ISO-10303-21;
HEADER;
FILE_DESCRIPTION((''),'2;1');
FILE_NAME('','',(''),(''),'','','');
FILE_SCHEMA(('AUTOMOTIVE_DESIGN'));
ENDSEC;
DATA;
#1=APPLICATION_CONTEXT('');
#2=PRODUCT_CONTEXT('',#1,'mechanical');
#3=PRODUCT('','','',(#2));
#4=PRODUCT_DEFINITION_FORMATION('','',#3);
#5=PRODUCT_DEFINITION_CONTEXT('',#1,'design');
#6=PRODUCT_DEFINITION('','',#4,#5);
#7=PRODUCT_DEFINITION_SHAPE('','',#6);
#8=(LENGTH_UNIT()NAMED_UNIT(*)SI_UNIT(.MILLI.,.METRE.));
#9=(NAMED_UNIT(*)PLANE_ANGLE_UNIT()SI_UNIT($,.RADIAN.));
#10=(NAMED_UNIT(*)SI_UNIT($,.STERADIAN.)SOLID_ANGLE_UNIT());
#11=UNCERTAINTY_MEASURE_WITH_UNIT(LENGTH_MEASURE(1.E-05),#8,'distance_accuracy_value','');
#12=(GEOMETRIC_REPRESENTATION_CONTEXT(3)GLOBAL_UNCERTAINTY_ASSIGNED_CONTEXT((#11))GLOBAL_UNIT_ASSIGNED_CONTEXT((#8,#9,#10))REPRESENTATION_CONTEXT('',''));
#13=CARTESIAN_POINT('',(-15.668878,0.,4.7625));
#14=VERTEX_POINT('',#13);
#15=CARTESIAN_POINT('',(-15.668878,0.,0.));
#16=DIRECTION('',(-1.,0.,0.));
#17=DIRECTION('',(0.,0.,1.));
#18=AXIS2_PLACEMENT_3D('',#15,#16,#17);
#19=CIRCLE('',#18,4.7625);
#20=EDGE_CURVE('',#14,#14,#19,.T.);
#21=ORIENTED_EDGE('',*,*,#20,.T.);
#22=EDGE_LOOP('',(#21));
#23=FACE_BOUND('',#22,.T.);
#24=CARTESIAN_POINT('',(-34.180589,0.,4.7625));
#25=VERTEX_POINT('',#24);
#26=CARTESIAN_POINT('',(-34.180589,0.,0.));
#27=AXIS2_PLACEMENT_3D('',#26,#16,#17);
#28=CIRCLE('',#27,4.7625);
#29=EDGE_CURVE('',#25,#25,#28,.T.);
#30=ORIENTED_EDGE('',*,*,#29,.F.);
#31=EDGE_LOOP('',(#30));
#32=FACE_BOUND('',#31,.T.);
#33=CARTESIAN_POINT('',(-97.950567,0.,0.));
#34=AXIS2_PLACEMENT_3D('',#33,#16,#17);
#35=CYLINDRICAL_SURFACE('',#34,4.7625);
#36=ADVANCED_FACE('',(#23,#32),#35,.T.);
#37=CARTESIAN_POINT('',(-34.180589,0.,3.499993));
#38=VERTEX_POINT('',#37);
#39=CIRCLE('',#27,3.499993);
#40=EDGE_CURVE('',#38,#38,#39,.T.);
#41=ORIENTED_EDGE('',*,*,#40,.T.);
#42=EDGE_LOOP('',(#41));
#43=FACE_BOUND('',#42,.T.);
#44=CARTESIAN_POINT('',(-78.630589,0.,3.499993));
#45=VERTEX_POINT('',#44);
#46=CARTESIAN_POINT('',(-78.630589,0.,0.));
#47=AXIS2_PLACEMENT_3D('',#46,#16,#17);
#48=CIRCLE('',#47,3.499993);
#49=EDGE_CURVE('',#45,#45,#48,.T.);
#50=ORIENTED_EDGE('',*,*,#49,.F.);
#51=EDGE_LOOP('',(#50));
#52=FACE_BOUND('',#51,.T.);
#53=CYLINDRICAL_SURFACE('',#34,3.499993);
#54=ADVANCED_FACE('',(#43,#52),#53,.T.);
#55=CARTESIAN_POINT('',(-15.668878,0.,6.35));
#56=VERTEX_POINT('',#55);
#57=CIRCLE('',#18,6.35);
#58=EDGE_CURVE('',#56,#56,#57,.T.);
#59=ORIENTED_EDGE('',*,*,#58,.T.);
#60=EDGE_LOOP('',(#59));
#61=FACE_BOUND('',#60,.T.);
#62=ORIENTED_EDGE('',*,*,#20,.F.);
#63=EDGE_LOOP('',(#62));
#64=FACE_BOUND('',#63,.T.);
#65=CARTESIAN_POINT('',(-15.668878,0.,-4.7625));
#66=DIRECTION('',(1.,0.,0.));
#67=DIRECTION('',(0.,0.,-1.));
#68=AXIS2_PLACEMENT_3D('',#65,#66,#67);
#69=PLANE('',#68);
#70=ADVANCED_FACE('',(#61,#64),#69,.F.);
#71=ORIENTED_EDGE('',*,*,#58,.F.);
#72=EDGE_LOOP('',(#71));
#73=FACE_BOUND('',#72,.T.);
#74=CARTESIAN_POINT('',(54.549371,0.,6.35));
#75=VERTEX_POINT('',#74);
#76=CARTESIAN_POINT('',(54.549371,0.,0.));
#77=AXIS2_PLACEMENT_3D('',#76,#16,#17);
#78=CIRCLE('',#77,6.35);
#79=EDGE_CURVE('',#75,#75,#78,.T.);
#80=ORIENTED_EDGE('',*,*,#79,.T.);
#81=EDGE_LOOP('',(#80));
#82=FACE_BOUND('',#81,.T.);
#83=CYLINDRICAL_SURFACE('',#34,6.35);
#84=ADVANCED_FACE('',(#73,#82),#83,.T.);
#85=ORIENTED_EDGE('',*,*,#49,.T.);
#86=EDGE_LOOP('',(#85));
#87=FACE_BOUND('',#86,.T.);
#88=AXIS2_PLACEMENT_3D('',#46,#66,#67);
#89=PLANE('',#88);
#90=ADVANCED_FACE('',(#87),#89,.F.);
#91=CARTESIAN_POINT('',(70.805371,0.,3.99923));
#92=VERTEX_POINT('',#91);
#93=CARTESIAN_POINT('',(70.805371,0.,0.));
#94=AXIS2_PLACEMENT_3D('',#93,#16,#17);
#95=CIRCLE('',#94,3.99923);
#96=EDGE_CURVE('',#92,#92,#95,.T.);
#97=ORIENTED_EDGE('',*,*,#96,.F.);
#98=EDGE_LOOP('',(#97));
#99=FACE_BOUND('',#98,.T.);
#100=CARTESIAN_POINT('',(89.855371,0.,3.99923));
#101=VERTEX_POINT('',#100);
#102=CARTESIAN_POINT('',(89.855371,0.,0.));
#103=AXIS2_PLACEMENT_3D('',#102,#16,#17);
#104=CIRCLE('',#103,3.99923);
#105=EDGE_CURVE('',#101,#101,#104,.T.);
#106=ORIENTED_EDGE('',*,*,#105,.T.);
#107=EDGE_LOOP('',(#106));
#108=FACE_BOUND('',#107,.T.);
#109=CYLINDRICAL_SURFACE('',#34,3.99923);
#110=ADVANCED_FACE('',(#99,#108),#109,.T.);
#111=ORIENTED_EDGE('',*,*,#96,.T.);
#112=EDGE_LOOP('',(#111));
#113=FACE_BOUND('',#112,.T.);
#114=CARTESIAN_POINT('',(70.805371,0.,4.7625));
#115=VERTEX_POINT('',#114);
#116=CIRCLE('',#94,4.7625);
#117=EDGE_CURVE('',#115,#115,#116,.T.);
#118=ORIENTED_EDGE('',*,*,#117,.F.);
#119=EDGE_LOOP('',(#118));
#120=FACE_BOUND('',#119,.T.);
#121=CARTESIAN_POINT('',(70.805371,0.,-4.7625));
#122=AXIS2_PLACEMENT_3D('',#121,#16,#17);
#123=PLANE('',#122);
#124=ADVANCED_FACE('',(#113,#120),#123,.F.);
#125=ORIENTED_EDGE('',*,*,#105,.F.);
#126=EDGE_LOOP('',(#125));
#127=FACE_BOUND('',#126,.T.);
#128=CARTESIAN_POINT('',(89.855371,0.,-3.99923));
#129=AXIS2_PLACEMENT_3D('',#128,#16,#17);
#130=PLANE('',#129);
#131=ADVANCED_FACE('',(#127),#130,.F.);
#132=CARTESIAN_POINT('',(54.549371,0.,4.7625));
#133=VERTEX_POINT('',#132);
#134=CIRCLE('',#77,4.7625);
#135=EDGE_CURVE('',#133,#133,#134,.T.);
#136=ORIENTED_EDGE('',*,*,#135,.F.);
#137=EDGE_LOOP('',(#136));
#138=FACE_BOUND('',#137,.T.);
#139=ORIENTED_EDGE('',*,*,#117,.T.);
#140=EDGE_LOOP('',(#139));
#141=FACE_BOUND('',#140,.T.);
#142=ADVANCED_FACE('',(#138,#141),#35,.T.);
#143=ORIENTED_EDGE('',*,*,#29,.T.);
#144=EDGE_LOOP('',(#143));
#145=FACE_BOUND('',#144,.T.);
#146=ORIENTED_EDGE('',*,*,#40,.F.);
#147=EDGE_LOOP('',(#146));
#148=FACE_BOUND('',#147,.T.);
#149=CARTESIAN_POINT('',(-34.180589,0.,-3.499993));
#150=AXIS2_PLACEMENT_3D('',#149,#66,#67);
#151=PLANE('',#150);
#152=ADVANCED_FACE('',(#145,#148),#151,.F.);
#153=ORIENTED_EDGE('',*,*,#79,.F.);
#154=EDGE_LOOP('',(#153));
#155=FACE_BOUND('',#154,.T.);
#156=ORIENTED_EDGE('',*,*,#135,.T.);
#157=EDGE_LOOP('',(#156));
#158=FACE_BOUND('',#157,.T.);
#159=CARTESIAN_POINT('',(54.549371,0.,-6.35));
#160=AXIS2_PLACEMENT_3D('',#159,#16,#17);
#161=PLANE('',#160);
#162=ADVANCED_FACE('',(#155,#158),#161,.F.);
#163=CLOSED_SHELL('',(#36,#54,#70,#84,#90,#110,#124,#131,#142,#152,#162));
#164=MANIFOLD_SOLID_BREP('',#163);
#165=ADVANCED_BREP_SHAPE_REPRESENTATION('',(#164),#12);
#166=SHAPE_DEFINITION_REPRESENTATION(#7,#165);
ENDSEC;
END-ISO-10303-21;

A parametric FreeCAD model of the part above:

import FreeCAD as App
import Part
import Sketcher
Q = App.Units.Quantity

doc = App.newDocument("Part")
body = doc.addObject("PartDesign::Body", "Body")

sketch1 = body.newObject("Sketcher::SketchObject", "Sketch")
sketch1.AttachmentSupport = (doc.getObject("XZ_Plane"), [""])
sketch1.MapMode = "FlatFace"
sketch1.addGeometry([
    Part.LineSegment(App.Vector(-78.6, -3.5, 0), App.Vector(-78.6, 0, 0)),
    Part.LineSegment(App.Vector(-78.6, 0, 0), App.Vector(89.9, 0, 0)),
    Part.LineSegment(App.Vector(89.9, 0, 0), App.Vector(89.9, -4, 0)),
    Part.LineSegment(App.Vector(89.9, -4, 0), App.Vector(70.8, -4, 0)),
    Part.LineSegment(App.Vector(70.8, -4, 0), App.Vector(70.8, -4.8, 0)),
    Part.LineSegment(App.Vector(70.8, -4.8, 0), App.Vector(54.5, -4.8, 0)),
    Part.LineSegment(App.Vector(54.5, -4.8, 0), App.Vector(54.5, -6.3, 0)),
    Part.LineSegment(App.Vector(54.5, -6.3, 0), App.Vector(-15.7, -6.3, 0)),
    Part.LineSegment(App.Vector(-15.7, -6.3, 0), App.Vector(-15.7, -4.8, 0)),
    Part.LineSegment(App.Vector(-15.7, -4.8, 0), App.Vector(-34.2, -4.8, 0)),
    Part.LineSegment(App.Vector(-34.2, -4.8, 0), App.Vector(-34.2, -3.5, 0)),
    Part.LineSegment(App.Vector(-34.2, -3.5, 0), App.Vector(-78.6, -3.5, 0)),
], False)
sketch1.addConstraint([
    Sketcher.Constraint("Coincident", 0, 2, 1, 1),
    Sketcher.Constraint("Coincident", 1, 2, 2, 1),
    Sketcher.Constraint("Coincident", 2, 2, 3, 1),
    Sketcher.Constraint("Coincident", 3, 2, 4, 1),
    Sketcher.Constraint("Coincident", 4, 2, 5, 1),
    Sketcher.Constraint("Coincident", 5, 2, 6, 1),
    Sketcher.Constraint("Coincident", 6, 2, 7, 1),
    Sketcher.Constraint("Coincident", 7, 2, 8, 1),
    Sketcher.Constraint("Coincident", 8, 2, 9, 1),
    Sketcher.Constraint("Coincident", 9, 2, 10, 1),
    Sketcher.Constraint("Coincident", 10, 2, 11, 1),
    Sketcher.Constraint("Coincident", 11, 2, 0, 1),
    Sketcher.Constraint("Vertical", 0),
    Sketcher.Constraint("Horizontal", 1),
    Sketcher.Constraint("Vertical", 2),
    Sketcher.Constraint("Horizontal", 3),
    Sketcher.Constraint("Vertical", 4),
    Sketcher.Constraint("Horizontal", 5),
    Sketcher.Constraint("Vertical", 6),
    Sketcher.Constraint("Horizontal", 7),
    Sketcher.Constraint("Vertical", 8),
    Sketcher.Constraint("Horizontal", 9),
    Sketcher.Constraint("Vertical", 10),
    Sketcher.Constraint("Horizontal", 11),
    Sketcher.Constraint("PointOnObject", 0, 2, -1),
    Sketcher.Constraint("Horizontal", 5, 2, 8, 2),
    Sketcher.Constraint("DistanceX", 3, 2, 3, 1, Q("0.75 in")),
    Sketcher.Constraint("DistanceX", 5, 2, 5, 1, Q("0.64 in")),
    Sketcher.Constraint("DistanceX", 11, 2, 11, 1, Q("1.75 in")),
    Sketcher.Constraint("DistanceY", 6, 2, 6, 1, Q("0.0625 in")),
    Sketcher.Constraint("DistanceY", 6, 2, -1, 1, Q("0.25 in")),
    Sketcher.Constraint("DistanceX", 1, 1, 1, 2, 168.48596),
    Sketcher.Constraint("DistanceX", 7, 2, 7, 1, 70.218249),
    Sketcher.Constraint("DistanceY", 2, 2, 2, 1, 3.99923),
    Sketcher.Constraint("DistanceY", 0, 1, 0, 2, 3.499993),
    Sketcher.Constraint("DistanceX", 0, 2, -1, 1, 78.630589),
])
revolution = body.newObject("PartDesign::Revolution", "Revolution")
revolution.Profile = sketch1
revolution.ReferenceAxis = (sketch1, ["H_Axis"])
revolution.Angle = 360

doc.recompute()
